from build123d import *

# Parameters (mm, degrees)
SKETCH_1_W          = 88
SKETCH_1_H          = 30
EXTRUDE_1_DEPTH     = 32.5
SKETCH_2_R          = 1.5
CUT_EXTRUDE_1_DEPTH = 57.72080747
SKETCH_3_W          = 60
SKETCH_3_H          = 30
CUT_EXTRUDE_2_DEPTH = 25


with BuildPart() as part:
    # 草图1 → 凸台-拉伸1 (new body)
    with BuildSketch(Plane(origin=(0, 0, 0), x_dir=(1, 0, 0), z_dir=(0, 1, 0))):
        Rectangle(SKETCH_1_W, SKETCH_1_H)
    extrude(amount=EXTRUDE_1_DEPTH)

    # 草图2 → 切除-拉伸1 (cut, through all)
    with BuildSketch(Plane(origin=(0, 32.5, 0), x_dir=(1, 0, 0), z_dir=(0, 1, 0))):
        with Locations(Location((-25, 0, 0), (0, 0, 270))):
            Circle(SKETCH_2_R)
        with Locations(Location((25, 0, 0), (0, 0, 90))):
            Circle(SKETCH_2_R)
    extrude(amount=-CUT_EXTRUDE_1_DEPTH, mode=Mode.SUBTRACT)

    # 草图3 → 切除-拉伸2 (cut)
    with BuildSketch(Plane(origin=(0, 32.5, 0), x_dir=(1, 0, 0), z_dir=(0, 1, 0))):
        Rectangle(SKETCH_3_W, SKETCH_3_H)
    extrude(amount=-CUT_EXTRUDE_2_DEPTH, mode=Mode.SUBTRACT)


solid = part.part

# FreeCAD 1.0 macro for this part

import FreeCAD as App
import Part
import Sketcher

V = App.Vector
Q = App.Units.Quantity


def add_polygon(sketch, points):
    """Adds a closed chain of lines whose ends are joined by coincident constraints."""
    first, n = sketch.GeometryCount, len(points)
    for a, b in zip(points, points[1:] + points[:1]):
        sketch.addGeometry(Part.LineSegment(App.Vector(*a, 0), App.Vector(*b, 0)), False)
    for i in range(n):
        sketch.addConstraint(Sketcher.Constraint("Coincident", first + i, 2, first + (i + 1) % n, 1))

doc = App.newDocument("Part")
body = doc.addObject("PartDesign::Body", "Body")

sketch1 = body.newObject("Sketcher::SketchObject", "Sketch")
sketch1.AttachmentSupport = (doc.getObject("XZ_Plane"), [""])
sketch1.MapMode = "FlatFace"
add_polygon(sketch1, [(-44, -15), (-44, 15), (44, 15), (44, -15)])
sketch1.addConstraint([
    Sketcher.Constraint("Vertical", 0),
    Sketcher.Constraint("Horizontal", 1),
    Sketcher.Constraint("Vertical", 2),
    Sketcher.Constraint("Horizontal", 3),
    Sketcher.Constraint("Symmetric", 0, 2, 2, 2, -1, 1),
    Sketcher.Constraint("DistanceX", 1, 1, 1, 2, Q("88 mm")),
    Sketcher.Constraint("DistanceY", 0, 1, 0, 2, Q("30 mm")),
])
pad1 = body.newObject("PartDesign::Pad", "Pad")
pad1.Profile = sketch1
pad1.Length = 32.5
pad1.Reversed = True

sketch2 = body.newObject("Sketcher::SketchObject", "Sketch001")
sketch2.AttachmentSupport = (doc.getObject("XZ_Plane"), [""])
sketch2.MapMode = "FlatFace"
sketch2.AttachmentOffset = App.Placement(V(0, 0, -32.5), App.Rotation())
sketch2.addGeometry([
    Part.Circle(V(-25, 0, 0), V(0, 0, 1), 1.5),
    Part.Circle(V(25, 0, 0), V(0, 0, 1), 1.5),
], False)
sketch2.addConstraint([
    Sketcher.Constraint("Equal", 0, 1),
    Sketcher.Constraint("Symmetric", 0, 3, 1, 3, -1, 1),
    Sketcher.Constraint("PointOnObject", 0, 3, -1),
    Sketcher.Constraint("Diameter", 0, Q("3 mm")),
    Sketcher.Constraint("DistanceX", 0, 3, -1, 1, Q("25 mm")),
])
pocket1 = body.newObject("PartDesign::Pocket", "Pocket")
pocket1.Profile = sketch2
pocket1.Type = "ThroughAll"
pocket1.Reversed = True

sketch3 = body.newObject("Sketcher::SketchObject", "Sketch002")
sketch3.AttachmentSupport = (doc.getObject("XZ_Plane"), [""])
sketch3.MapMode = "FlatFace"
sketch3.AttachmentOffset = App.Placement(V(0, 0, -32.5), App.Rotation())
add_polygon(sketch3, [(-30, -15), (-30, 15), (30, 15), (30, -15)])
sketch3.addConstraint([
    Sketcher.Constraint("Vertical", 0),
    Sketcher.Constraint("Horizontal", 1),
    Sketcher.Constraint("Vertical", 2),
    Sketcher.Constraint("Horizontal", 3),
    Sketcher.Constraint("Symmetric", 0, 2, 2, 2, -1, 1),
    Sketcher.Constraint("DistanceX", 1, 1, 1, 2, Q("60 mm")),
    Sketcher.Constraint("DistanceY", 0, 1, 0, 2, Q("30 mm")),
])
pocket2 = body.newObject("PartDesign::Pocket", "Pocket001")
pocket2.Profile = sketch3
pocket2.Length = 25
pocket2.Reversed = True

doc.recompute()
